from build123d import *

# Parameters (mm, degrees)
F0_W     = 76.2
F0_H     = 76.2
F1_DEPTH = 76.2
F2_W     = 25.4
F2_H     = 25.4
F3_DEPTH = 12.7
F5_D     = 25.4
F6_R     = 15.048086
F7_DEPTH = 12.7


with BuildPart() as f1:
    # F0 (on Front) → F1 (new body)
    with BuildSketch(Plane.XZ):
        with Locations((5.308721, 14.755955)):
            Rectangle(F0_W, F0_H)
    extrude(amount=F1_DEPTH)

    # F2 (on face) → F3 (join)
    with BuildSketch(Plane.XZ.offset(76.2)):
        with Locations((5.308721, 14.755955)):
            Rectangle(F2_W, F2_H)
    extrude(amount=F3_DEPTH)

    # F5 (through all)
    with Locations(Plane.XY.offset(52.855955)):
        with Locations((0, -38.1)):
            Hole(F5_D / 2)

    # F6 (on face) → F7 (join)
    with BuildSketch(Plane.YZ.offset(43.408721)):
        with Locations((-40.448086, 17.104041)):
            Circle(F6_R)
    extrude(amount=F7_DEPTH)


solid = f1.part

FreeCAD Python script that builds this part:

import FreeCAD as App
import Part
import Sketcher
Q = App.Units.Quantity

doc = App.newDocument("Part")
params = doc.addObject("Spreadsheet::Sheet", "Params")
for row, (alias, value) in enumerate([
    ("sketch1_width", "3 in"),
    ("pad1_length", "3 in"),
    ("sketch2_width", "1 in"),
    ("pad2_length", "0.5 in"),
    ("sketch3_diameter", "1 in"),
    ("hole_diameter", "1 in"),
    ("pad3_length", "0.5 in"),
], start=1):
    params.set(f"A{row}", alias)
    params.set(f"B{row}", "=" + value)
    params.setAlias(f"B{row}", alias)

body = doc.addObject("PartDesign::Body", "Body")

sketch1 = body.newObject("Sketcher::SketchObject", "Sketch")
sketch1.AttachmentSupport = (doc.getObject("XZ_Plane"), [""])
sketch1.MapMode = "FlatFace"
sketch1.addGeometry([
    Part.LineSegment(App.Vector(-32.791279, 52.855955, 0), App.Vector(-32.791279, -23.344045, 0)),
    Part.LineSegment(App.Vector(-32.791279, -23.344045, 0), App.Vector(43.408721, -23.344045, 0)),
    Part.LineSegment(App.Vector(43.408721, -23.344045, 0), App.Vector(43.408721, 52.855955, 0)),
    Part.LineSegment(App.Vector(43.408721, 52.855955, 0), App.Vector(-32.791279, 52.855955, 0)),
], False)
sketch1.addConstraint([
    Sketcher.Constraint("Coincident", 0, 2, 1, 1),
    Sketcher.Constraint("Coincident", 1, 2, 2, 1),
    Sketcher.Constraint("Coincident", 2, 2, 3, 1),
    Sketcher.Constraint("Coincident", 3, 2, 0, 1),
    Sketcher.Constraint("Vertical", 0),
    Sketcher.Constraint("Horizontal", 1),
    Sketcher.Constraint("Vertical", 2),
    Sketcher.Constraint("Horizontal", 3),
    Sketcher.Constraint("Equal", 3, 0),
    Sketcher.Constraint("DistanceX", 1, 1, 1, 2, Q("3 in")),
    Sketcher.Constraint("DistanceX", 0, 2, -1, 1, Q("32.791279 mm")),
    Sketcher.Constraint("DistanceY", 0, 2, -1, 1, Q("23.344045 mm")),
])
sketch1.setExpression("Constraints[9]", "Params.sketch1_width")
pad1 = body.newObject("PartDesign::Pad", "Pad")
pad1.Profile = sketch1
pad1.setExpression("Length", "Params.pad1_length")

sketch2 = body.newObject("Sketcher::SketchObject", "Sketch001")
sketch2.AttachmentSupport = (doc.getObject("XZ_Plane"), [""])
sketch2.MapMode = "FlatFace"
sketch2.AttachmentOffset = App.Placement(App.Vector(0, 0, 3 * 25.4), App.Rotation())
sketch2.addGeometry([
    Part.LineSegment(App.Vector(-7.391279, 27.455955, 0), App.Vector(-7.391279, 2.055955, 0)),
    Part.LineSegment(App.Vector(-7.391279, 2.055955, 0), App.Vector(18.008721, 2.055955, 0)),
    Part.LineSegment(App.Vector(18.008721, 2.055955, 0), App.Vector(18.008721, 27.455955, 0)),
    Part.LineSegment(App.Vector(18.008721, 27.455955, 0), App.Vector(-7.391279, 27.455955, 0)),
], False)
sketch2.addConstraint([
    Sketcher.Constraint("Coincident", 0, 2, 1, 1),
    Sketcher.Constraint("Coincident", 1, 2, 2, 1),
    Sketcher.Constraint("Coincident", 2, 2, 3, 1),
    Sketcher.Constraint("Coincident", 3, 2, 0, 1),
    Sketcher.Constraint("Vertical", 0),
    Sketcher.Constraint("Horizontal", 1),
    Sketcher.Constraint("Vertical", 2),
    Sketcher.Constraint("Horizontal", 3),
    Sketcher.Constraint("Equal", 3, 0),
    Sketcher.Constraint("DistanceX", 1, 1, 1, 2, Q("1 in")),
    Sketcher.Constraint("DistanceX", 0, 2, -1, 1, Q("7.391279 mm")),
    Sketcher.Constraint("DistanceY", -1, 1, 0, 2, Q("2.055955 mm")),
])
sketch2.setExpression("Constraints[9]", "Params.sketch2_width")
pad2 = body.newObject("PartDesign::Pad", "Pad001")
pad2.Profile = sketch2
pad2.setExpression("Length", "Params.pad2_length")

sketch3 = body.newObject("Sketcher::SketchObject", "Sketch002")
sketch3.AttachmentSupport = (doc.getObject("XY_Plane"), [""])
sketch3.MapMode = "FlatFace"
sketch3.AttachmentOffset = App.Placement(App.Vector(0, 0, 52.855955), App.Rotation())
sketch3.addGeometry(Part.Circle(App.Vector(0, -38.1, 0), App.Vector(0, 0, 1), 12.7), False)
sketch3.addConstraint([
    Sketcher.Constraint("PointOnObject", 0, 3, -2),
    Sketcher.Constraint("Diameter", 0, Q("1 in")),
    Sketcher.Constraint("DistanceY", 0, 3, -1, 1, Q("1.5 in")),
])
sketch3.setExpression("Constraints[1]", "Params.sketch3_diameter")
doc.recompute()
hole = body.newObject("PartDesign::Hole", "Hole")
hole.Profile = sketch3
hole.ThreadType = "None"
hole.setExpression("Diameter", "Params.hole_diameter")
hole.DepthType = "ThroughAll"

sketch4 = body.newObject("Sketcher::SketchObject", "Sketch003")
sketch4.AttachmentSupport = (doc.getObject("YZ_Plane"), [""])
sketch4.MapMode = "FlatFace"
sketch4.AttachmentOffset = App.Placement(App.Vector(0, 0, 43.408721), App.Rotation())
sketch4.addGeometry(Part.Circle(App.Vector(-40.448086, 17.104041, 0), App.Vector(0, 0, 1), 15.048086), False)
sketch4.addConstraint([
    Sketcher.Constraint("Diameter", 0, Q("30.096172 mm")),
    Sketcher.Constraint("DistanceY", -1, 1, 0, 3, Q("17.104041 mm")),
    Sketcher.Constraint("DistanceX", 0, 3, -1, 1, Q("40.448086 mm")),
])
pad3 = body.newObject("PartDesign::Pad", "Pad002")
pad3.Profile = sketch4
pad3.setExpression("Length", "Params.pad3_length")

doc.recompute()
